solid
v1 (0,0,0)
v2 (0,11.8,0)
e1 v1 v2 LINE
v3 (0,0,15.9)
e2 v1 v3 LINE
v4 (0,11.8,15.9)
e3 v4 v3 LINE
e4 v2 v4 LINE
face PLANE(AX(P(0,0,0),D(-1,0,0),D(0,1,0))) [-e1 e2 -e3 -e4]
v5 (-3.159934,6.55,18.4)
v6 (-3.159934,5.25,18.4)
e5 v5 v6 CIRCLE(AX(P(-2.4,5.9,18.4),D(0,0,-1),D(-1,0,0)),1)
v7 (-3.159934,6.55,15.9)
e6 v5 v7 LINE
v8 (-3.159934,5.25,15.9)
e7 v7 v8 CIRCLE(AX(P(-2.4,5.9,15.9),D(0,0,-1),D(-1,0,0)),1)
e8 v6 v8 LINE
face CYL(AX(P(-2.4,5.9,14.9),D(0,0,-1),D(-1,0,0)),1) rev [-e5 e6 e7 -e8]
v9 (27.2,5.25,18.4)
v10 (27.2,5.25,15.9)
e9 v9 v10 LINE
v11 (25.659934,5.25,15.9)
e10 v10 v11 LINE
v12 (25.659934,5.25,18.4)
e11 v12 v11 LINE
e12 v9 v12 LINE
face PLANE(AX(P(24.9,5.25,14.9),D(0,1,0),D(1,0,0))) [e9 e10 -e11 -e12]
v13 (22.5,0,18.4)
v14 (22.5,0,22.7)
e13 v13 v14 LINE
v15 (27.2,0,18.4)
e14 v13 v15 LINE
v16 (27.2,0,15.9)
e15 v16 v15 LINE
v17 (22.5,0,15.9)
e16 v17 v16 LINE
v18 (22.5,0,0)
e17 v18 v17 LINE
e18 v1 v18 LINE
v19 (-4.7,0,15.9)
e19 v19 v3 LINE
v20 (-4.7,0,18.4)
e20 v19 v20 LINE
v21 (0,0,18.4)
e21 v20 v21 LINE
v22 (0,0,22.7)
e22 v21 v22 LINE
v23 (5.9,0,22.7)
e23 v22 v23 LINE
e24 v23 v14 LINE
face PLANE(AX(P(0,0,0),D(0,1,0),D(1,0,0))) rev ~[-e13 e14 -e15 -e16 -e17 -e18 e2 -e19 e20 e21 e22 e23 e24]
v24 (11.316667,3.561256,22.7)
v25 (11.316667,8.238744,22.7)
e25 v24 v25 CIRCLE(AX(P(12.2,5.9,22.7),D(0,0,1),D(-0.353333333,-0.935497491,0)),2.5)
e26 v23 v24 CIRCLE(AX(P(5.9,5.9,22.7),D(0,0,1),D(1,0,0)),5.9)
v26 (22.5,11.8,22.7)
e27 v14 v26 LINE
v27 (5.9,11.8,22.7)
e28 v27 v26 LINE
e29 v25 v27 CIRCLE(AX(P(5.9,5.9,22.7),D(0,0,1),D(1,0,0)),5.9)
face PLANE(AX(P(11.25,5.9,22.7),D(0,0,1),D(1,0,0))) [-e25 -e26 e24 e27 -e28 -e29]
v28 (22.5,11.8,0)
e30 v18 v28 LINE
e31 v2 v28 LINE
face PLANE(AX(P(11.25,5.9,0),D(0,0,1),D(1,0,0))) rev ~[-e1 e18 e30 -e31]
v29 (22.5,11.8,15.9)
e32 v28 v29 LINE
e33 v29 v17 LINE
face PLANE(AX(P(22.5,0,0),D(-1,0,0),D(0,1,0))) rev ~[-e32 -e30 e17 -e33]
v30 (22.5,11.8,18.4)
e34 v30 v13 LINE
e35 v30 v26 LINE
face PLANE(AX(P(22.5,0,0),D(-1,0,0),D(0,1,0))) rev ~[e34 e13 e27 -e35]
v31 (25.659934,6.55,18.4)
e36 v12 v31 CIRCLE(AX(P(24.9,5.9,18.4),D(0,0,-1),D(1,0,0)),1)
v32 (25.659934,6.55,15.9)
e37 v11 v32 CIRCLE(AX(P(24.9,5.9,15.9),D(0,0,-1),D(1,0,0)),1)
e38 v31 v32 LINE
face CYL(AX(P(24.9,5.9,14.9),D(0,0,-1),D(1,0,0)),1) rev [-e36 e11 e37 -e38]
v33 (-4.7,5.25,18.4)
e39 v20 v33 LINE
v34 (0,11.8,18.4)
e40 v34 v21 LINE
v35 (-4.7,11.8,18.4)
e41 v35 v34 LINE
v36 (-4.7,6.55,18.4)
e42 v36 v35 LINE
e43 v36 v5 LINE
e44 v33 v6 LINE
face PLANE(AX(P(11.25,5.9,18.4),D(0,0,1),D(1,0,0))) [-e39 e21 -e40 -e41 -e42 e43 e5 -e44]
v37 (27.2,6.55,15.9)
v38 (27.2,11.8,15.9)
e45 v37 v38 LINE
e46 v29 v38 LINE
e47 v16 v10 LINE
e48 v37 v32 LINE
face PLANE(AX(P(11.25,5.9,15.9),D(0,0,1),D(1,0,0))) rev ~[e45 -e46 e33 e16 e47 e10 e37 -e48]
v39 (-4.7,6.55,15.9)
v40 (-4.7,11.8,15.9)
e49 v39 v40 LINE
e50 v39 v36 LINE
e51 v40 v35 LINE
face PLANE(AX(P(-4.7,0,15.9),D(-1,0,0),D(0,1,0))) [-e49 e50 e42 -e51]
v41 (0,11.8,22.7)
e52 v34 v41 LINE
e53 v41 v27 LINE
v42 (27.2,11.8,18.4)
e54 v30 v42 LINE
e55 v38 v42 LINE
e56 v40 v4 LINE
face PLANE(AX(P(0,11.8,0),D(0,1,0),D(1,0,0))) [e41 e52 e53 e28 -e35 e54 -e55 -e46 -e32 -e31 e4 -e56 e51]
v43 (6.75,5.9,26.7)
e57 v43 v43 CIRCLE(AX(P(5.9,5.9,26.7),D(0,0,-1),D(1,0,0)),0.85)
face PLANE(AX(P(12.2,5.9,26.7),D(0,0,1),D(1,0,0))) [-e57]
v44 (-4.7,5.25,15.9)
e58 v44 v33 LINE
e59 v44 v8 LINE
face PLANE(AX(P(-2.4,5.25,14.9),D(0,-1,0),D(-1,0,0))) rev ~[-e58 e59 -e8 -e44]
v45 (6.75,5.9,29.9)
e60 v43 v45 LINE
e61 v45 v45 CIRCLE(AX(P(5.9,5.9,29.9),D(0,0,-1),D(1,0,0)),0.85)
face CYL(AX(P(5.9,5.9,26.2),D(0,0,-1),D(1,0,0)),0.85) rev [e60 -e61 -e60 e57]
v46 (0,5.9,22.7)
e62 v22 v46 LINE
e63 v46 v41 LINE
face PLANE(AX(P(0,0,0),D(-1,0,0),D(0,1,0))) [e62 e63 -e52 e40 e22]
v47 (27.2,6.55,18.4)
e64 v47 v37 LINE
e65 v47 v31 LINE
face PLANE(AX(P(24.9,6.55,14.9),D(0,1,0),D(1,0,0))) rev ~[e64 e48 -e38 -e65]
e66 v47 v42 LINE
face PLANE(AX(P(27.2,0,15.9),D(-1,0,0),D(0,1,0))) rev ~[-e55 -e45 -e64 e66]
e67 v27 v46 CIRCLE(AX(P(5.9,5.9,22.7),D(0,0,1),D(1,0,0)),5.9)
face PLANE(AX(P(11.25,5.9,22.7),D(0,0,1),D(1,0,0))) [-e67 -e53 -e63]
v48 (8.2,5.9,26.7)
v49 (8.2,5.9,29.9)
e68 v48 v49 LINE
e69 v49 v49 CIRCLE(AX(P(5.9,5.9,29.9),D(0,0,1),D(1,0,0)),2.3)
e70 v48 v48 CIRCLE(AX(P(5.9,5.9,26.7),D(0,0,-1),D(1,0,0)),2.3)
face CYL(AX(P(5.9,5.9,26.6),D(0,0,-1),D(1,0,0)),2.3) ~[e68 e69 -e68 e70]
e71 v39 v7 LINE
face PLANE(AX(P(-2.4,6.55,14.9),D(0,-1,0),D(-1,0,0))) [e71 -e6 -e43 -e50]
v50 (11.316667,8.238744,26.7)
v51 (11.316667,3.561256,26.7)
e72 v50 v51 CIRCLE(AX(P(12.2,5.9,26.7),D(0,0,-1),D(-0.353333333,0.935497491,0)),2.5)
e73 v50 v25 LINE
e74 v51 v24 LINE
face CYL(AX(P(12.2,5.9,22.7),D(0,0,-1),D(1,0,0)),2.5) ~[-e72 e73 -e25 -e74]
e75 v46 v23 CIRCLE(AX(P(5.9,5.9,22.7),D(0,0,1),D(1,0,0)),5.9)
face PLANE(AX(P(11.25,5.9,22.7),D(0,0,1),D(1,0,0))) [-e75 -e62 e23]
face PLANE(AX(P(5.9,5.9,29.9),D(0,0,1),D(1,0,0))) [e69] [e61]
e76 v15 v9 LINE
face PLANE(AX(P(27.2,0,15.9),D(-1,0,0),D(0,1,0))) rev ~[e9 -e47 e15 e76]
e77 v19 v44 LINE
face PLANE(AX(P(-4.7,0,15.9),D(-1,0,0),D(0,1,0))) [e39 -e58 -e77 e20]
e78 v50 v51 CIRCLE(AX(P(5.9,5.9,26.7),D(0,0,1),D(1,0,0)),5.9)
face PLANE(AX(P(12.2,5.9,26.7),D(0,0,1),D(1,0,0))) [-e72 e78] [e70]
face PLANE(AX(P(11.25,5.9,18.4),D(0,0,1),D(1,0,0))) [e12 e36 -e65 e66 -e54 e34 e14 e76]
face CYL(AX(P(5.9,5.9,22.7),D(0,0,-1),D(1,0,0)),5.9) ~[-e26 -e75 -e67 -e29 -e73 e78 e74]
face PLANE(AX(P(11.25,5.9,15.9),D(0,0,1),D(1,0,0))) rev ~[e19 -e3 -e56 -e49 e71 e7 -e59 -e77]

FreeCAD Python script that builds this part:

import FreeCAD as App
import Part
import Sketcher
from FreeCAD import Vector

doc = App.newDocument("Part")
params = doc.addObject("Spreadsheet::Sheet", "Params")
for row, (alias, value) in enumerate([
    ("sketch1_diameter", "1.7 mm"),
    ("pad1_length", "4 mm"),
    ("sketch2_diameter", "4.6 mm"),
    ("pad2_length", "3.3 mm"),
    ("sketch3_diameter", "5 mm"),
    ("pad3_length", "4 mm"),
    ("sketch4_diameter", "11.8 mm"),
    ("pad4_length", "4 mm"),
    ("sketch5_width", "22.5 mm"),
    ("sketch5_height", "11.8 mm"),
    ("pad5_length", "22.7 mm"),
    ("sketch6_width", "4.3 mm"),
    ("sketch6_height", "1.3 mm"),
    ("pad6_length", "5 mm"),
    ("sketch7_diameter", "2 mm"),
    ("pad7_length", "5 mm"),
    ("sketch8_width", "4.3 mm"),
    ("sketch8_height", "1.3 mm"),
    ("pad8_length", "5 mm"),
    ("sketch9_diameter", "2 mm"),
    ("pad9_length", "5 mm"),
    ("sketch10_width", "31.9 mm"),
    ("sketch10_height", "11.8 mm"),
    ("pad10_length", "2.5 mm"),
], start=1):
    params.set(f"A{row}", alias)
    params.set(f"B{row}", "=" + value)
    params.setAlias(f"B{row}", alias)

body = doc.addObject("PartDesign::Body", "Body")

sketch1 = body.newObject("Sketcher::SketchObject", "Sketch")
sketch1.AttachmentSupport = (doc.getObject("XY_Plane"), [""])
sketch1.MapMode = "FlatFace"
sketch1.AttachmentOffset = App.Placement(Vector(0, 0, -0.5), App.Rotation())
sketch1.addGeometry(Part.Circle(Vector(0, 0, 0), Vector(0, 0, 1), 0.8), False)
sketch1.addConstraint([
    Sketcher.Constraint("Coincident", 0, 3, -1, 1),
    Sketcher.Constraint("Diameter", 0, 1.7),
])
sketch1.setExpression("Constraints[1]", "Params.sketch1_diameter")
pad1 = body.newObject("PartDesign::Pad", "Pad")
pad1.Profile = sketch1
pad1.setExpression("Length", "Params.pad1_length")
body2 = doc.addObject("PartDesign::Body", "Body001")

sketch2 = body2.newObject("Sketcher::SketchObject", "Sketch001")
sketch2.AttachmentSupport = (doc.getObject("XY_Plane001"), [""])
sketch2.MapMode = "FlatFace"
sketch2.AttachmentOffset = App.Placement(Vector(0, 0, -0.1), App.Rotation())
sketch2.addGeometry(Part.Circle(Vector(0, 0, 0), Vector(0, 0, 1), 2.3), False)
sketch2.addConstraint([
    Sketcher.Constraint("Coincident", 0, 3, -1, 1),
    Sketcher.Constraint("Diameter", 0, 4.6),
])
sketch2.setExpression("Constraints[1]", "Params.sketch2_diameter")
pad2 = body2.newObject("PartDesign::Pad", "Pad001")
pad2.Profile = sketch2
pad2.setExpression("Length", "Params.pad2_length")
doc.recompute()

boolean = body2.newObject("PartDesign::Boolean", "Boolean")
boolean.Type = "Cut"
boolean.addObjects([body])
body3 = doc.addObject("PartDesign::Body", "Body002")
doc.recompute()

body2.Placement = App.Placement(Vector(5.9, 5.9, 26.7), App.Rotation(Vector(0, 0, 1), 0))
boolean2 = body3.newObject("PartDesign::Boolean", "Boolean001")
boolean2.Type = "Fuse"
boolean2.addObjects([body2])
body4 = doc.addObject("PartDesign::Body", "Body003")

sketch3 = body4.newObject("Sketcher::SketchObject", "Sketch002")
sketch3.AttachmentSupport = (doc.getObject("XY_Plane003"), [""])
sketch3.MapMode = "FlatFace"
sketch3.addGeometry(Part.Circle(Vector(6.3, 0, 0), Vector(0, 0, 1), 2.5), False)
sketch3.addConstraint([
    Sketcher.Constraint("PointOnObject", 0, 3, -1),
    Sketcher.Constraint("Diameter", 0, 5.0),
    Sketcher.Constraint("DistanceX", -1, 1, 0, 3, 6.3),
])
sketch3.setExpression("Constraints[1]", "Params.sketch3_diameter")
pad3 = body4.newObject("PartDesign::Pad", "Pad002")
pad3.Profile = sketch3
pad3.setExpression("Length", "Params.pad3_length")
body5 = doc.addObject("PartDesign::Body", "Body004")

sketch4 = body5.newObject("Sketcher::SketchObject", "Sketch003")
sketch4.AttachmentSupport = (doc.getObject("XY_Plane004"), [""])
sketch4.MapMode = "FlatFace"
sketch4.addGeometry(Part.Circle(Vector(0, 0, 0), Vector(0, 0, 1), 6), False)
sketch4.addConstraint([
    Sketcher.Constraint("Coincident", 0, 3, -1, 1),
    Sketcher.Constraint("Diameter", 0, 11.8),
])
sketch4.setExpression("Constraints[1]", "Params.sketch4_diameter")
pad4 = body5.newObject("PartDesign::Pad", "Pad003")
pad4.Profile = sketch4
pad4.setExpression("Length", "Params.pad4_length")
doc.recompute()

boolean3 = body5.newObject("PartDesign::Boolean", "Boolean002")
boolean3.Type = "Fuse"
boolean3.addObjects([body4])
body6 = doc.addObject("PartDesign::Body", "Body005")
doc.recompute()

body5.Placement = App.Placement(Vector(5.9, 5.9, 22.7), App.Rotation(Vector(0, 0, 1), 0))
boolean4 = body6.newObject("PartDesign::Boolean", "Boolean003")
boolean4.Type = "Fuse"
boolean4.addObjects([body5])
doc.recompute()

boolean5 = body6.newObject("PartDesign::Boolean", "Boolean004")
boolean5.Type = "Fuse"
boolean5.addObjects([body3])
body7 = doc.addObject("PartDesign::Body", "Body006")

sketch5 = body7.newObject("Sketcher::SketchObject", "Sketch004")
sketch5.AttachmentSupport = (doc.getObject("XY_Plane006"), [""])
sketch5.MapMode = "FlatFace"
sketch5.addGeometry([
    Part.LineSegment(Vector(0, 12, 0), Vector(0, 0, 0)),
    Part.LineSegment(Vector(0, 0, 0), Vector(22, 0, 0)),
    Part.LineSegment(Vector(22, 0, 0), Vector(22, 12, 0)),
    Part.LineSegment(Vector(22, 12, 0), Vector(0, 12, 0)),
], False)
sketch5.addConstraint([
    Sketcher.Constraint("Coincident", 0, 2, 1, 1),
    Sketcher.Constraint("Coincident", 1, 2, 2, 1),
    Sketcher.Constraint("Coincident", 2, 2, 3, 1),
    Sketcher.Constraint("Coincident", 3, 2, 0, 1),
    Sketcher.Constraint("Vertical", 0),
    Sketcher.Constraint("Horizontal", 1),
    Sketcher.Constraint("Vertical", 2),
    Sketcher.Constraint("Horizontal", 3),
    Sketcher.Constraint("Coincident", 0, 2, -1, 1),
    Sketcher.Constraint("DistanceX", 1, 1, 1, 2, 22.5),
    Sketcher.Constraint("DistanceY", 0, 2, 0, 1, 11.8),
])
sketch5.setExpression("Constraints[9]", "Params.sketch5_width")
sketch5.setExpression("Constraints[10]", "Params.sketch5_height")
pad5 = body7.newObject("PartDesign::Pad", "Pad004")
pad5.Profile = sketch5
pad5.setExpression("Length", "Params.pad5_length")
body8 = doc.addObject("PartDesign::Body", "Body007")

sketch6 = body8.newObject("Sketcher::SketchObject", "Sketch005")
sketch6.AttachmentSupport = (doc.getObject("XY_Plane007"), [""])
sketch6.MapMode = "FlatFace"
sketch6.addGeometry([
    Part.LineSegment(Vector(0, 0.7, 0), Vector(0, -0.7, 0)),
    Part.LineSegment(Vector(0, -0.7, 0), Vector(4.3, -0.7, 0)),
    Part.LineSegment(Vector(4.3, -0.7, 0), Vector(4.3, 0.7, 0)),
    Part.LineSegment(Vector(4.3, 0.7, 0), Vector(0, 0.7, 0)),
], False)
sketch6.addConstraint([
    Sketcher.Constraint("Coincident", 0, 2, 1, 1),
    Sketcher.Constraint("Coincident", 1, 2, 2, 1),
    Sketcher.Constraint("Coincident", 2, 2, 3, 1),
    Sketcher.Constraint("Coincident", 3, 2, 0, 1),
    Sketcher.Constraint("Vertical", 0),
    Sketcher.Constraint("Horizontal", 1),
    Sketcher.Constraint("Vertical", 2),
    Sketcher.Constraint("Horizontal", 3),
    Sketcher.Constraint("Symmetric", 0, 2, 3, 2, -1, 1),
    Sketcher.Constraint("DistanceX", 1, 1, 1, 2, 4.3),
    Sketcher.Constraint("DistanceY", 0, 2, 0, 1, 1.3),
])
sketch6.setExpression("Constraints[9]", "Params.sketch6_width")
sketch6.setExpression("Constraints[10]", "Params.sketch6_height")
pad6 = body8.newObject("PartDesign::Pad", "Pad005")
pad6.Profile = sketch6
pad6.setExpression("Length", "Params.pad6_length")
body9 = doc.addObject("PartDesign::Body", "Body008")

sketch7 = body9.newObject("Sketcher::SketchObject", "Sketch006")
sketch7.AttachmentSupport = (doc.getObject("XY_Plane008"), [""])
sketch7.MapMode = "FlatFace"
sketch7.addGeometry(Part.Circle(Vector(0, 0, 0), Vector(0, 0, 1), 1), False)
sketch7.addConstraint([
    Sketcher.Constraint("Coincident", 0, 3, -1, 1),
    Sketcher.Constraint("Diameter", 0, 2.0),
])
sketch7.setExpression("Constraints[1]", "Params.sketch7_diameter")
pad7 = body9.newObject("PartDesign::Pad", "Pad006")
pad7.Profile = sketch7
pad7.setExpression("Length", "Params.pad7_length")
doc.recompute()

boolean6 = body9.newObject("PartDesign::Boolean", "Boolean005")
boolean6.Type = "Fuse"
boolean6.addObjects([body8])
body10 = doc.addObject("PartDesign::Body", "Body009")
doc.recompute()

body9.Placement = App.Placement(Vector(2.3, 5.9, -1), App.Rotation(Vector(0, 0, 1), 180))
boolean7 = body10.newObject("PartDesign::Boolean", "Boolean006")
boolean7.Type = "Fuse"
boolean7.addObjects([body9])
body11 = doc.addObject("PartDesign::Body", "Body010")

sketch8 = body11.newObject("Sketcher::SketchObject", "Sketch007")
sketch8.AttachmentSupport = (doc.getObject("XY_Plane010"), [""])
sketch8.MapMode = "FlatFace"
sketch8.addGeometry([
    Part.LineSegment(Vector(0, 0.7, 0), Vector(0, -0.7, 0)),
    Part.LineSegment(Vector(0, -0.7, 0), Vector(4.3, -0.7, 0)),
    Part.LineSegment(Vector(4.3, -0.7, 0), Vector(4.3, 0.7, 0)),
    Part.LineSegment(Vector(4.3, 0.7, 0), Vector(0, 0.7, 0)),
], False)
sketch8.addConstraint([
    Sketcher.Constraint("Coincident", 0, 2, 1, 1),
    Sketcher.Constraint("Coincident", 1, 2, 2, 1),
    Sketcher.Constraint("Coincident", 2, 2, 3, 1),
    Sketcher.Constraint("Coincident", 3, 2, 0, 1),
    Sketcher.Constraint("Vertical", 0),
    Sketcher.Constraint("Horizontal", 1),
    Sketcher.Constraint("Vertical", 2),
    Sketcher.Constraint("Horizontal", 3),
    Sketcher.Constraint("Symmetric", 0, 2, 3, 2, -1, 1),
    Sketcher.Constraint("DistanceX", 1, 1, 1, 2, 4.3),
    Sketcher.Constraint("DistanceY", 0, 2, 0, 1, 1.3),
])
sketch8.setExpression("Constraints[9]", "Params.sketch8_width")
sketch8.setExpression("Constraints[10]", "Params.sketch8_height")
pad8 = body11.newObject("PartDesign::Pad", "Pad007")
pad8.Profile = sketch8
pad8.setExpression("Length", "Params.pad8_length")
body12 = doc.addObject("PartDesign::Body", "Body011")

sketch9 = body12.newObject("Sketcher::SketchObject", "Sketch008")
sketch9.AttachmentSupport = (doc.getObject("XY_Plane011"), [""])
sketch9.MapMode = "FlatFace"
sketch9.addGeometry(Part.Circle(Vector(0, 0, 0), Vector(0, 0, 1), 1), False)
sketch9.addConstraint([
    Sketcher.Constraint("Coincident", 0, 3, -1, 1),
    Sketcher.Constraint("Diameter", 0, 2.0),
])
sketch9.setExpression("Constraints[1]", "Params.sketch9_diameter")
pad9 = body12.newObject("PartDesign::Pad", "Pad008")
pad9.Profile = sketch9
pad9.setExpression("Length", "Params.pad9_length")
doc.recompute()

boolean8 = body12.newObject("PartDesign::Boolean", "Boolean007")
boolean8.Type = "Fuse"
boolean8.addObjects([body11])
body13 = doc.addObject("PartDesign::Body", "Body012")
doc.recompute()

body12.Placement = App.Placement(Vector(29.6, 5.9, -1), App.Rotation(Vector(0, 0, 1), 0))
boolean9 = body13.newObject("PartDesign::Boolean", "Boolean008")
boolean9.Type = "Fuse"
boolean9.addObjects([body12])
body14 = doc.addObject("PartDesign::Body", "Body013")

sketch10 = body14.newObject("Sketcher::SketchObject", "Sketch009")
sketch10.AttachmentSupport = (doc.getObject("XY_Plane013"), [""])
sketch10.MapMode = "FlatFace"
sketch10.addGeometry([
    Part.LineSegment(Vector(0, 12, 0), Vector(0, 0, 0)),
    Part.LineSegment(Vector(0, 0, 0), Vector(32, 0, 0)),
    Part.LineSegment(Vector(32, 0, 0), Vector(32, 12, 0)),
    Part.LineSegment(Vector(32, 12, 0), Vector(0, 12, 0)),
], False)
sketch10.addConstraint([
    Sketcher.Constraint("Coincident", 0, 2, 1, 1),
    Sketcher.Constraint("Coincident", 1, 2, 2, 1),
    Sketcher.Constraint("Coincident", 2, 2, 3, 1),
    Sketcher.Constraint("Coincident", 3, 2, 0, 1),
    Sketcher.Constraint("Vertical", 0),
    Sketcher.Constraint("Horizontal", 1),
    Sketcher.Constraint("Vertical", 2),
    Sketcher.Constraint("Horizontal", 3),
    Sketcher.Constraint("Coincident", 0, 2, -1, 1),
    Sketcher.Constraint("DistanceX", 1, 1, 1, 2, 31.9),
    Sketcher.Constraint("DistanceY", 0, 2, 0, 1, 11.8),
])
sketch10.setExpression("Constraints[9]", "Params.sketch10_width")
sketch10.setExpression("Constraints[10]", "Params.sketch10_height")
pad10 = body14.newObject("PartDesign::Pad", "Pad009")
pad10.Profile = sketch10
pad10.setExpression("Length", "Params.pad10_length")
doc.recompute()

boolean10 = body14.newObject("PartDesign::Boolean", "Boolean009")
boolean10.Type = "Cut"
boolean10.addObjects([body13])
doc.recompute()

boolean11 = body14.newObject("PartDesign::Boolean", "Boolean010")
boolean11.Type = "Cut"
boolean11.addObjects([body10])
body15 = doc.addObject("PartDesign::Body", "Body014")
doc.recompute()

body14.Placement = App.Placement(Vector(-4.7, 0, 15.9), App.Rotation(Vector(0, 0, 1), 0))
boolean12 = body15.newObject("PartDesign::Boolean", "Boolean011")
boolean12.Type = "Fuse"
boolean12.addObjects([body14])
doc.recompute()

boolean13 = body15.newObject("PartDesign::Boolean", "Boolean012")
boolean13.Type = "Fuse"
boolean13.addObjects([body7])
doc.recompute()

boolean14 = body15.newObject("PartDesign::Boolean", "Boolean013")
boolean14.Type = "Fuse"
boolean14.addObjects([body6])

doc.recompute()
